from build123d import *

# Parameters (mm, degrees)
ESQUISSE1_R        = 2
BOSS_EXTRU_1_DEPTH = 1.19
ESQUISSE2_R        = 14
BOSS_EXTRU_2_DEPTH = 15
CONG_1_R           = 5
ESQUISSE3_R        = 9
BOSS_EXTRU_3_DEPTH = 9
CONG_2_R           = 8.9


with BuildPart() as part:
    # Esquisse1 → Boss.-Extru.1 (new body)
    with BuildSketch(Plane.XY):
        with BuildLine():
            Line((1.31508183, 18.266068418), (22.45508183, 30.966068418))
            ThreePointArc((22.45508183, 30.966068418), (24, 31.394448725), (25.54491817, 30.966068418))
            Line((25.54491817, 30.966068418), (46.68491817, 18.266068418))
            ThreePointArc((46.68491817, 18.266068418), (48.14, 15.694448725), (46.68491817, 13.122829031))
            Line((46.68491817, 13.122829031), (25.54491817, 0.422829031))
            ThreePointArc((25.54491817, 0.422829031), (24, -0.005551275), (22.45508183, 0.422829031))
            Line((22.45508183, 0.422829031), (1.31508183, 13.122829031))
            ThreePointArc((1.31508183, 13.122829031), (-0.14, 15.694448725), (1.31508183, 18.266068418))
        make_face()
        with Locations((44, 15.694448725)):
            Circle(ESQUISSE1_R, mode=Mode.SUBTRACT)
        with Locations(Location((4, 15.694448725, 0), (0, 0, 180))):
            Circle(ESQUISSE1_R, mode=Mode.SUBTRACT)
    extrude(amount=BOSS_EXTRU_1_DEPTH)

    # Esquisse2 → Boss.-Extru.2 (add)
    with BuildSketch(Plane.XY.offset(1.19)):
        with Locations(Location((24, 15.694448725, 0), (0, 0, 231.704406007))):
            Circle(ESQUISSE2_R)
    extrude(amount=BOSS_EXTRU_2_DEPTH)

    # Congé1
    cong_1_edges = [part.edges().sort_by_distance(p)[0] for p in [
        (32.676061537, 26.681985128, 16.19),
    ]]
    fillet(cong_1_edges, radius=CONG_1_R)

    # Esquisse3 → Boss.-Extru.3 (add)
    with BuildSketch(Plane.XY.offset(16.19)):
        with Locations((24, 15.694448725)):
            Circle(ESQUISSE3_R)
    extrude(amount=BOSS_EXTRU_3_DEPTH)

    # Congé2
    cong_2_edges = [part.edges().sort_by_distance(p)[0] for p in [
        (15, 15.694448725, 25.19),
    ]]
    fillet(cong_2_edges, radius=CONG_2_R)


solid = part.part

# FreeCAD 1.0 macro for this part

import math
import FreeCAD as App
import Part
import Sketcher
Q = App.Units.Quantity


def edges_at(feature, points):
    """Names of the edges that pass closest to the given points."""
    edges = feature.Shape.Edges
    near = lambda p: min(range(len(edges)), key=lambda i: edges[i].distToShape(Part.Vertex(*p))[0])
    return sorted({f"Edge{near(p) + 1}" for p in points})

doc = App.newDocument("Part")
body = doc.addObject("PartDesign::Body", "Body")

# Sketch on XY plane
sketch1 = doc.addObject("Sketcher::SketchObject", "Sketch")
body.addObject(sketch1)
sketch1.AttachmentSupport = (doc.XY_Plane, [""])
sketch1.MapMode = "FlatFace"
sketch1.addGeometry([
    Part.LineSegment(App.Vector(22.5, 31, 0), App.Vector(1.3, 18.3, 0)),  # 0
    Part.ArcOfCircle(Part.Circle(App.Vector(2.9, 15.7, 0), App.Vector(0, 0, 1), 3), math.radians(121), math.radians(239)),  # 1
    Part.LineSegment(App.Vector(1.3, 13.1, 0), App.Vector(22.5, 0.4, 0)),  # 2
    Part.ArcOfCircle(Part.Circle(App.Vector(24, 3, 0), App.Vector(0, 0, 1), 3), math.radians(-121), math.radians(-59)),  # 3
    Part.LineSegment(App.Vector(25.5, 0.4, 0), App.Vector(46.7, 13.1, 0)),  # 4
    Part.ArcOfCircle(Part.Circle(App.Vector(45.1, 15.7, 0), App.Vector(0, 0, 1), 3), math.radians(-59), math.radians(59)),  # 5
    Part.LineSegment(App.Vector(46.7, 18.3, 0), App.Vector(25.5, 31, 0)),  # 6
    Part.ArcOfCircle(Part.Circle(App.Vector(24, 28.4, 0), App.Vector(0, 0, 1), 3), math.radians(59), math.radians(121)),  # 7
    Part.Circle(App.Vector(44, 15.7, 0), App.Vector(0, 0, 1), 2),  # 8
    Part.Circle(App.Vector(4, 15.7, 0), App.Vector(0, 0, 1), 2),  # 9
], False)
sketch1.addConstraint([
    Sketcher.Constraint("Tangent", 0, 2, 1, 1),
    Sketcher.Constraint("Tangent", 1, 2, 2, 1),
    Sketcher.Constraint("Tangent", 2, 2, 3, 1),
    Sketcher.Constraint("Tangent", 3, 2, 4, 1),
    Sketcher.Constraint("Tangent", 4, 2, 5, 1),
    Sketcher.Constraint("Tangent", 5, 2, 6, 1),
    Sketcher.Constraint("Tangent", 6, 2, 7, 1),
    Sketcher.Constraint("Tangent", 7, 2, 0, 1),
    Sketcher.Constraint("Equal", 1, 3),
    Sketcher.Constraint("Equal", 3, 5),
    Sketcher.Constraint("Equal", 5, 7),
    Sketcher.Constraint("Equal", 8, 9),
    Sketcher.Constraint("Parallel", 0, 4),
    Sketcher.Constraint("Parallel", 2, 6),
    Sketcher.Constraint("Horizontal", 1, 3, 5, 3),
    Sketcher.Constraint("Horizontal", 5, 3, 8, 3),
    Sketcher.Constraint("Horizontal", 8, 3, 9, 3),
    Sketcher.Constraint("Horizontal", 2, 2, 3, 2),
    Sketcher.Constraint("Diameter", 8, Q("4 mm")),
    Sketcher.Constraint("Radius", 1, Q("3 mm")),
    Sketcher.Constraint("DistanceX", -1, 1, 3, 3, Q("24 mm")),
    Sketcher.Constraint("DistanceX", -1, 1, 8, 3, Q("44 mm")),
    Sketcher.Constraint("DistanceX", -1, 1, 9, 3, Q("4 mm")),
    Sketcher.Constraint("DistanceY", 3, 3, 1, 3, Q("12.7 mm")),
    Sketcher.Constraint("DistanceX", -1, 1, 1, 3, Q("2.86 mm")),
    Sketcher.Constraint("DistanceY", -1, 1, 1, 3, Q("15.694449 mm")),
])
pad1 = doc.addObject("PartDesign::Pad", "Pad")
body.addObject(pad1)
pad1.Profile = sketch1
pad1.Length = 1.19

# Sketch on XY plane
sketch2 = doc.addObject("Sketcher::SketchObject", "Sketch001")
body.addObject(sketch2)
sketch2.AttachmentSupport = (doc.XY_Plane, [""])
sketch2.MapMode = "FlatFace"
sketch2.AttachmentOffset = App.Placement(App.Vector(0, 0, 1.19), App.Rotation())
sketch2.addGeometry(Part.Circle(App.Vector(24, 16, 0), App.Vector(0, 0, 1), 14), False)
sketch2.addConstraint([
    Sketcher.Constraint("Diameter", 0, Q("28 mm")),
    Sketcher.Constraint("DistanceX", -1, 1, 0, 3, Q("24 mm")),
    Sketcher.Constraint("DistanceY", -1, 1, 0, 3, Q("15.694449 mm")),
])
pad2 = doc.addObject("PartDesign::Pad", "Pad001")
body.addObject(pad2)
pad2.Profile = sketch2
pad2.Length = 15
doc.recompute()

fillet = doc.addObject("PartDesign::Fillet", "Fillet")
body.addObject(fillet)
fillet.Base = (pad2, edges_at(pad2, [(32.676, 26.682, 16.19)]))
fillet.Radius = 5

# Sketch on XY plane
sketch3 = doc.addObject("Sketcher::SketchObject", "Sketch002")
body.addObject(sketch3)
sketch3.AttachmentSupport = (doc.XY_Plane, [""])
sketch3.MapMode = "FlatFace"
sketch3.AttachmentOffset = App.Placement(App.Vector(0, 0, 16.19), App.Rotation())
sketch3.addGeometry(Part.Circle(App.Vector(24, 16, 0), App.Vector(0, 0, 1), 9), False)
sketch3.addConstraint([
    Sketcher.Constraint("Diameter", 0, Q("18 mm")),
    Sketcher.Constraint("DistanceX", -1, 1, 0, 3, Q("24 mm")),
    Sketcher.Constraint("DistanceY", -1, 1, 0, 3, Q("15.694449 mm")),
])
pad3 = doc.addObject("PartDesign::Pad", "Pad002")
body.addObject(pad3)
pad3.Profile = sketch3
pad3.Length = 9
doc.recompute()

fillet2 = doc.addObject("PartDesign::Fillet", "Fillet001")
body.addObject(fillet2)
fillet2.Base = (pad3, edges_at(pad3, [(15, 15.694, 25.19)]))
fillet2.Radius = 8.9

doc.recompute()
